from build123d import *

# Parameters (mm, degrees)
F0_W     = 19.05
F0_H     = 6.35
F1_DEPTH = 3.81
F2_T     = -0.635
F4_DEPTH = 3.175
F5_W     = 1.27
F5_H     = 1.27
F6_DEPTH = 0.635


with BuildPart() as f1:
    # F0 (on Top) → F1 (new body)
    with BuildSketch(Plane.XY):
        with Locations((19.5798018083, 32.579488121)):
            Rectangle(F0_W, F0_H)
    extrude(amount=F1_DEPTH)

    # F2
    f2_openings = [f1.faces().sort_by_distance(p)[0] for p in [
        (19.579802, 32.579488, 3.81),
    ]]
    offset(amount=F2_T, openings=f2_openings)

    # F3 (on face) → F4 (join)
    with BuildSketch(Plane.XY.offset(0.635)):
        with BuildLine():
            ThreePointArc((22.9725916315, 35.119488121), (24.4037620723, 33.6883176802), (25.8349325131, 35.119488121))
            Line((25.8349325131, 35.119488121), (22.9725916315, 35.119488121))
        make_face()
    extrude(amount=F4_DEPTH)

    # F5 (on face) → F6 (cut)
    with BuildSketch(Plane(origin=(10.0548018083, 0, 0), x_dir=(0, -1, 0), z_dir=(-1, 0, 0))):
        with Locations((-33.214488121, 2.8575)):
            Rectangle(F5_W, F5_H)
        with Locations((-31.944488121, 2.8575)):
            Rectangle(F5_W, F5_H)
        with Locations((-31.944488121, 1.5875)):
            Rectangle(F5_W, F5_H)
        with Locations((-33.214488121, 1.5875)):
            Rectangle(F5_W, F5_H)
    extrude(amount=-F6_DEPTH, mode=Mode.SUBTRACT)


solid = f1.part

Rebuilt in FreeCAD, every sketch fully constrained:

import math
import FreeCAD as App
import Part
import Sketcher

V = App.Vector
Q = App.Units.Quantity


def faces_at(feature, points):
    """Names of the faces that lie closest to the given points."""
    faces = feature.Shape.Faces
    near = lambda p: min(range(len(faces)), key=lambda i: faces[i].distToShape(Part.Vertex(*p))[0])
    return sorted({f"Face{near(p) + 1}" for p in points})


def add_polygon(sketch, points):
    """Adds a closed chain of lines whose ends are joined by coincident constraints."""
    first, n = sketch.GeometryCount, len(points)
    for a, b in zip(points, points[1:] + points[:1]):
        sketch.addGeometry(Part.LineSegment(App.Vector(*a, 0), App.Vector(*b, 0)), False)
    for i in range(n):
        sketch.addConstraint(Sketcher.Constraint("Coincident", first + i, 2, first + (i + 1) % n, 1))

doc = App.newDocument("Part")
body = doc.addObject("PartDesign::Body", "Body")

sketch1 = doc.addObject("Sketcher::SketchObject", "Sketch")
body.addObject(sketch1)
sketch1.AttachmentSupport = (doc.XY_Plane, [""])
sketch1.MapMode = "FlatFace"
add_polygon(sketch1, [(10, 36), (10, 29), (29, 29), (29, 36)])
sketch1.addConstraint(Sketcher.Constraint("Vertical", 0))
sketch1.addConstraint(Sketcher.Constraint("Horizontal", 1))
sketch1.addConstraint(Sketcher.Constraint("Vertical", 2))
sketch1.addConstraint(Sketcher.Constraint("Horizontal", 3))
sketch1.addConstraint(Sketcher.Constraint("DistanceX", 1, 1, 1, 2, Q("0.75 in")))
sketch1.addConstraint(Sketcher.Constraint("DistanceY", 0, 2, 0, 1, Q("0.25 in")))
sketch1.addConstraint(Sketcher.Constraint("DistanceX", -1, 1, 0, 2, Q("10.054802 mm")))
sketch1.addConstraint(Sketcher.Constraint("DistanceY", -1, 1, 0, 2, Q("29.404488 mm")))
pad1 = doc.addObject("PartDesign::Pad", "Pad")
body.addObject(pad1)
pad1.Profile = sketch1
pad1.Length = Q("0.15 in")
doc.recompute()

thickness = doc.addObject("PartDesign::Thickness", "Thickness")
body.addObject(thickness)
thickness.Base = (pad1, faces_at(pad1, [(19.58, 32.579, 3.81)]))
thickness.Value = Q("0.025 in")
thickness.Reversed = True
thickness.Join = "Arc"

sketch2 = doc.addObject("Sketcher::SketchObject", "Sketch001")
body.addObject(sketch2)
sketch2.AttachmentSupport = (doc.XY_Plane, [""])
sketch2.MapMode = "FlatFace"
sketch2.AttachmentOffset = App.Placement(V(0, 0, 0.025 * 25.4), App.Rotation())
sketch2.addGeometry(Part.ArcOfCircle(Part.Circle(V(24.4, 35.1, 0), V(0, 0, 1), 1.4), math.radians(180), math.radians(360)), False)
sketch2.addGeometry(Part.LineSegment(V(25.8, 35.1, 0), V(23, 35.1, 0)), False)
sketch2.addConstraint(Sketcher.Constraint("Coincident", 0, 1, 1, 2))
sketch2.addConstraint(Sketcher.Constraint("Coincident", 1, 1, 0, 2))
sketch2.addConstraint(Sketcher.Constraint("Horizontal", 1))
sketch2.addConstraint(Sketcher.Constraint("Radius", 0, Q("1.43117 mm")))
sketch2.addConstraint(Sketcher.Constraint("DistanceY", -1, 1, 0, 3, Q("35.119488 mm")))
sketch2.addConstraint(Sketcher.Constraint("DistanceX", -1, 1, 0, 1, Q("22.972592 mm")))
sketch2.addConstraint(Sketcher.Constraint("DistanceY", -1, 1, 0, 1, Q("35.119488 mm")))
pad2 = doc.addObject("PartDesign::Pad", "Pad001")
body.addObject(pad2)
pad2.Profile = sketch2
pad2.Length = Q("0.125 in")

sketch3 = doc.addObject("Sketcher::SketchObject", "Sketch002")
body.addObject(sketch3)
sketch3.AttachmentSupport = (doc.YZ_Plane, [""])
sketch3.MapMode = "FlatFace"
sketch3.AttachmentOffset = App.Placement(V(0, 0, 10.054802), App.Rotation())
add_polygon(sketch3, [(33.8, 3.5), (33.8, 1), (31.3, 1), (31.3, 3.5)])
sketch3.addConstraint(Sketcher.Constraint("Vertical", 0))
sketch3.addConstraint(Sketcher.Constraint("Horizontal", 1))
sketch3.addConstraint(Sketcher.Constraint("Vertical", 2))
sketch3.addConstraint(Sketcher.Constraint("Horizontal", 3))
sketch3.addConstraint(Sketcher.Constraint("Equal", 3, 0))
sketch3.addConstraint(Sketcher.Constraint("DistanceX", 1, 2, 1, 1, Q("0.1 in")))
sketch3.addConstraint(Sketcher.Constraint("DistanceY", -1, 1, 0, 2, Q("0.0375 in")))
sketch3.addConstraint(Sketcher.Constraint("DistanceX", -1, 1, 0, 2, Q("33.849488 mm")))
pocket1 = doc.addObject("PartDesign::Pocket", "Pocket")
body.addObject(pocket1)
pocket1.Profile = sketch3
pocket1.Length = Q("0.025 in")
pocket1.Reversed = True

doc.recompute()
